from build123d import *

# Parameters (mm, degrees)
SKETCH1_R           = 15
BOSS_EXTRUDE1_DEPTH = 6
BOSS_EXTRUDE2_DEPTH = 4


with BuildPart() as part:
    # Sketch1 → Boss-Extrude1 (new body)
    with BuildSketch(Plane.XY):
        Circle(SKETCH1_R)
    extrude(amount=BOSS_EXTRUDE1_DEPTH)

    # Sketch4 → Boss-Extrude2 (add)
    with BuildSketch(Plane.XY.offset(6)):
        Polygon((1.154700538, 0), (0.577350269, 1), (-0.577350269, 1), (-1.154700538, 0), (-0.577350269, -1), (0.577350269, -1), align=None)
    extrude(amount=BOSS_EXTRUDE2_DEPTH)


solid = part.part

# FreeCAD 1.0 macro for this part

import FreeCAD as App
import Part
import Sketcher
Q = App.Units.Quantity


def add_polygon(sketch, points):
    """Adds a closed chain of lines whose ends are joined by coincident constraints."""
    first, n = sketch.GeometryCount, len(points)
    for a, b in zip(points, points[1:] + points[:1]):
        sketch.addGeometry(Part.LineSegment(App.Vector(*a, 0), App.Vector(*b, 0)), False)
    for i in range(n):
        sketch.addConstraint(Sketcher.Constraint("Coincident", first + i, 2, first + (i + 1) % n, 1))

doc = App.newDocument("Part")
body = doc.addObject("PartDesign::Body", "Body")

# Sketch on XY plane
sketch1 = doc.addObject("Sketcher::SketchObject", "Sketch")
body.addObject(sketch1)
sketch1.AttachmentSupport = (doc.XY_Plane, [""])
sketch1.MapMode = "FlatFace"
sketch1.addGeometry(Part.Circle(App.Vector(0, 0, 0), App.Vector(0, 0, 1), 15), False)
sketch1.addConstraint(Sketcher.Constraint("Coincident", 0, 3, -1, 1))
sketch1.addConstraint(Sketcher.Constraint("Diameter", 0, Q("30 mm")))
pad1 = doc.addObject("PartDesign::Pad", "Pad")
body.addObject(pad1)
pad1.Profile = sketch1
pad1.Length = 6

# Sketch on XY plane
sketch2 = doc.addObject("Sketcher::SketchObject", "Sketch001")
body.addObject(sketch2)
sketch2.AttachmentSupport = (doc.XY_Plane, [""])
sketch2.MapMode = "FlatFace"
sketch2.AttachmentOffset = App.Placement(App.Vector(0, 0, 6), App.Rotation())
add_polygon(sketch2, [(1.2, 0), (0.6, 1), (-0.6, 1), (-1.2, 0), (-0.6, -1), (0.6, -1)])  # lines 0-5
sketch2.addConstraint(Sketcher.Constraint("Horizontal", 1))
sketch2.addConstraint(Sketcher.Constraint("Horizontal", 4))
sketch2.addConstraint(Sketcher.Constraint("Symmetric", 0, 2, 3, 2, -1, 1))
sketch2.addConstraint(Sketcher.Constraint("Symmetric", 2, 2, 5, 2, -1, 1))
sketch2.addConstraint(Sketcher.Constraint("PointOnObject", 2, 2, -1))
sketch2.addConstraint(Sketcher.Constraint("Parallel", 2, 5))
sketch2.addConstraint(Sketcher.Constraint("Vertical", 1, 2, 3, 2))
sketch2.addConstraint(Sketcher.Constraint("Angle", 0, Q("120 deg")))
sketch2.addConstraint(Sketcher.Constraint("DistanceY", -1, 1, 0, 2, Q("1 mm")))
sketch2.addConstraint(Sketcher.Constraint("DistanceX", 1, 2, 1, 1, Q("1.154701 mm")))
pad2 = doc.addObject("PartDesign::Pad", "Pad001")
body.addObject(pad2)
pad2.Profile = sketch2
pad2.Length = 4

doc.recompute()
